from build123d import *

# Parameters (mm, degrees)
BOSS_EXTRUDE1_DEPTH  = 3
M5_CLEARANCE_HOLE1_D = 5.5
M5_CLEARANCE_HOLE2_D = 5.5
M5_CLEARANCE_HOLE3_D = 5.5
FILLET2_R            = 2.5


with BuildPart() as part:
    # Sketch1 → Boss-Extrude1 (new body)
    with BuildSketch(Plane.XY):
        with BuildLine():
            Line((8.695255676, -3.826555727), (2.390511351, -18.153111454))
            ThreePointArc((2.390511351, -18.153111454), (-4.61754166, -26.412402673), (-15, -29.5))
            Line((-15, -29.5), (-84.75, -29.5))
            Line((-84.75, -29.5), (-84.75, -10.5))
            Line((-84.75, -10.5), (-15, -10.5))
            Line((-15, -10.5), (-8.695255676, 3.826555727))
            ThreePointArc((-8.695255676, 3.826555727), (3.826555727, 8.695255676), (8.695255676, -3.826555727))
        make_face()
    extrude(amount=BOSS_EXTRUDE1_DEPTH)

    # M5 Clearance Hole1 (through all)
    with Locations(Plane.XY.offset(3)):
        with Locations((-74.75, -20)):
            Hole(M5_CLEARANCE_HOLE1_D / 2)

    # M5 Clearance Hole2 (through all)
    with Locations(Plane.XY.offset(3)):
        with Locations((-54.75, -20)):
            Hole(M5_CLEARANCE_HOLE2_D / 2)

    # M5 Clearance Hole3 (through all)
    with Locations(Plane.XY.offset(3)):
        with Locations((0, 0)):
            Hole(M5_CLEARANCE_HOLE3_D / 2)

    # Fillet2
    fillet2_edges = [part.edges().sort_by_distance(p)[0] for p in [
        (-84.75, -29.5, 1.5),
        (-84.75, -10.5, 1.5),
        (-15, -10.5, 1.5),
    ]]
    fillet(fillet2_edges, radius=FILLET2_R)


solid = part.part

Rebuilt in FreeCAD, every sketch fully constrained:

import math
import FreeCAD as App
import Part
import Sketcher
Q = App.Units.Quantity


def edges_at(feature, points):
    """Names of the edges that pass closest to the given points."""
    edges = feature.Shape.Edges
    near = lambda p: min(range(len(edges)), key=lambda i: edges[i].distToShape(Part.Vertex(*p))[0])
    return sorted({f"Edge{near(p) + 1}" for p in points})

doc = App.newDocument("Part")
body = doc.addObject("PartDesign::Body", "Body")

# Sketch on XY plane
sketch1 = doc.addObject("Sketcher::SketchObject", "Sketch")
body.addObject(sketch1)
sketch1.AttachmentSupport = (doc.XY_Plane, [""])
sketch1.MapMode = "FlatFace"
sketch1.addGeometry([
    Part.LineSegment(App.Vector(2.390511, -18.153111, 0), App.Vector(8.695256, -3.826556, 0)),  # 0
    Part.ArcOfCircle(Part.Circle(App.Vector(0, 0, 0), App.Vector(0, 0, 1), 9.5), math.radians(-23.753045), math.radians(156.246955)),  # 1
    Part.LineSegment(App.Vector(-8.695256, 3.826556, 0), App.Vector(-15, -10.5, 0)),  # 2
    Part.LineSegment(App.Vector(-15, -10.5, 0), App.Vector(-84.75, -10.5, 0)),  # 3
    Part.LineSegment(App.Vector(-84.75, -10.5, 0), App.Vector(-84.75, -29.5, 0)),  # 4
    Part.LineSegment(App.Vector(-84.75, -29.5, 0), App.Vector(-15, -29.5, 0)),  # 5
    Part.ArcOfCircle(Part.Circle(App.Vector(-15, -10.5, 0), App.Vector(0, 0, 1), 19), math.radians(-90), math.radians(-23.753045)),  # 6
], False)
sketch1.addConstraint([
    Sketcher.Constraint("Tangent", 0, 2, 1, 1),
    Sketcher.Constraint("Tangent", 1, 2, 2, 1),
    Sketcher.Constraint("Coincident", 2, 2, 3, 1),
    Sketcher.Constraint("Coincident", 3, 2, 4, 1),
    Sketcher.Constraint("Coincident", 4, 2, 5, 1),
    Sketcher.Constraint("Tangent", 5, 2, 6, 1),
    Sketcher.Constraint("Tangent", 6, 2, 0, 1),
    Sketcher.Constraint("Horizontal", 3),
    Sketcher.Constraint("Vertical", 4),
    Sketcher.Constraint("Horizontal", 5),
    Sketcher.Constraint("Coincident", 1, 3, -1, 1),
    Sketcher.Constraint("Coincident", 2, 2, 6, 3),
    Sketcher.Constraint("Parallel", 0, 2),
    Sketcher.Constraint("Radius", 6, Q("19 mm")),
    Sketcher.Constraint("DistanceX", 6, 3, -1, 1, Q("15 mm")),
    Sketcher.Constraint("DistanceX", 3, 2, 3, 1, Q("69.75 mm")),
    Sketcher.Constraint("DistanceY", 6, 3, -1, 1, Q("10.5 mm")),
])
pad1 = doc.addObject("PartDesign::Pad", "Pad")
body.addObject(pad1)
pad1.Profile = sketch1
pad1.Length = 3

# Sketch on XY plane
sketch2 = doc.addObject("Sketcher::SketchObject", "Sketch001")
body.addObject(sketch2)
sketch2.AttachmentSupport = (doc.XY_Plane, [""])
sketch2.MapMode = "FlatFace"
sketch2.AttachmentOffset = App.Placement(App.Vector(0, 0, 3), App.Rotation())
sketch2.addGeometry(Part.Circle(App.Vector(-74.75, -20, 0), App.Vector(0, 0, 1), 2.75), False)
sketch2.addConstraint([
    Sketcher.Constraint("Diameter", 0, Q("5.5 mm")),
    Sketcher.Constraint("DistanceY", 0, 3, -1, 1, Q("20 mm")),
    Sketcher.Constraint("DistanceX", 0, 3, -1, 1, Q("74.75 mm")),
])
doc.recompute()
hole = doc.addObject("PartDesign::Hole", "Hole")
body.addObject(hole)
hole.Profile = sketch2
hole.ThreadType = "None"
hole.Diameter = 5.5
hole.DepthType = "ThroughAll"

# Sketch on XY plane
sketch3 = doc.addObject("Sketcher::SketchObject", "Sketch002")
body.addObject(sketch3)
sketch3.AttachmentSupport = (doc.XY_Plane, [""])
sketch3.MapMode = "FlatFace"
sketch3.AttachmentOffset = App.Placement(App.Vector(0, 0, 3), App.Rotation())
sketch3.addGeometry(Part.Circle(App.Vector(-54.75, -20, 0), App.Vector(0, 0, 1), 2.75), False)
sketch3.addConstraint([
    Sketcher.Constraint("Diameter", 0, Q("5.5 mm")),
    Sketcher.Constraint("DistanceY", 0, 3, -1, 1, Q("20 mm")),
    Sketcher.Constraint("DistanceX", 0, 3, -1, 1, Q("54.75 mm")),
])
doc.recompute()
hole2 = doc.addObject("PartDesign::Hole", "Hole001")
body.addObject(hole2)
hole2.Profile = sketch3
hole2.ThreadType = "None"
hole2.Diameter = 5.5
hole2.DepthType = "ThroughAll"

# Sketch on XY plane
sketch4 = doc.addObject("Sketcher::SketchObject", "Sketch003")
body.addObject(sketch4)
sketch4.AttachmentSupport = (doc.XY_Plane, [""])
sketch4.MapMode = "FlatFace"
sketch4.AttachmentOffset = App.Placement(App.Vector(0, 0, 3), App.Rotation())
sketch4.addGeometry(Part.Circle(App.Vector(0, 0, 0), App.Vector(0, 0, 1), 2.75), False)
sketch4.addConstraint([
    Sketcher.Constraint("Coincident", 0, 3, -1, 1),
    Sketcher.Constraint("Diameter", 0, Q("5.5 mm")),
])
doc.recompute()
hole3 = doc.addObject("PartDesign::Hole", "Hole002")
body.addObject(hole3)
hole3.Profile = sketch4
hole3.ThreadType = "None"
hole3.Diameter = 5.5
hole3.DepthType = "ThroughAll"
doc.recompute()

fillet = doc.addObject("PartDesign::Fillet", "Fillet")
body.addObject(fillet)
fillet.Base = (hole3, edges_at(hole3, [(-84.75, -29.5, 1.5), (-84.75, -10.5, 1.5), (-15, -10.5, 1.5)]))
fillet.Radius = 2.5

doc.recompute()
